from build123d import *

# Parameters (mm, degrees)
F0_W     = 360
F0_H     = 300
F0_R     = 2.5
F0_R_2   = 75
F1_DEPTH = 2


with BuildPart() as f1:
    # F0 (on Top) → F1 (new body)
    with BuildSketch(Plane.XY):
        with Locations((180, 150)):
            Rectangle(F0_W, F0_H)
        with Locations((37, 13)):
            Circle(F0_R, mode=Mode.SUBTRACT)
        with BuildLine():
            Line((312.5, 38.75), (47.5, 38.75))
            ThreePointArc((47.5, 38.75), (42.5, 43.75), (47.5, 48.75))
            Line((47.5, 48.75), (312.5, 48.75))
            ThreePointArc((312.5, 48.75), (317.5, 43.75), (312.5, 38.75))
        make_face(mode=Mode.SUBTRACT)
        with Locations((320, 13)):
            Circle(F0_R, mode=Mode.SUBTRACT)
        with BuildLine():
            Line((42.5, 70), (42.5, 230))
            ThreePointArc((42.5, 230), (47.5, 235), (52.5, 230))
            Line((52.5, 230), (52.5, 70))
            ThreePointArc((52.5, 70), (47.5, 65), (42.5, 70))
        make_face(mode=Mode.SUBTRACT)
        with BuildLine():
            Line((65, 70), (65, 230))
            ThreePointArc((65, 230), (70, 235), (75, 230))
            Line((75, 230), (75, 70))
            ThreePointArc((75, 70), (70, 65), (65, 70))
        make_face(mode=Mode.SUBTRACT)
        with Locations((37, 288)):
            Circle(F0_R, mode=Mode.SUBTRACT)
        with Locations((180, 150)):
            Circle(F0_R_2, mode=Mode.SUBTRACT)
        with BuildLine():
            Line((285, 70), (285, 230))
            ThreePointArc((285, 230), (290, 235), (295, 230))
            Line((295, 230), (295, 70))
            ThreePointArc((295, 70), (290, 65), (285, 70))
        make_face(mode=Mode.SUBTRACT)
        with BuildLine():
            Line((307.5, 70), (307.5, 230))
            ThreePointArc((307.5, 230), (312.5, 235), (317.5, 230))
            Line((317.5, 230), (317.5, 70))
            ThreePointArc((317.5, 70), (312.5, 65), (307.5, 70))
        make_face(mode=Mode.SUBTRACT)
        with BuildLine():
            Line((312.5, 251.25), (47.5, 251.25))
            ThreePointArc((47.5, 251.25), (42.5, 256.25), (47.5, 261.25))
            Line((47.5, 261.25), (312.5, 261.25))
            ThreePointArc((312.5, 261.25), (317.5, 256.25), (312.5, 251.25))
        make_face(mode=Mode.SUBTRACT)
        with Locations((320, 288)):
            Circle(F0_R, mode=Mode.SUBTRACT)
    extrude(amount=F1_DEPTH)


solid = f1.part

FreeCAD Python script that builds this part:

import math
import FreeCAD as App
import Part
import Sketcher
from FreeCAD import Vector


def add_polygon(sketch, points):
    """Adds a closed chain of lines whose ends are joined by coincident constraints."""
    first, n = sketch.GeometryCount, len(points)
    for a, b in zip(points, points[1:] + points[:1]):
        sketch.addGeometry(Part.LineSegment(App.Vector(*a, 0), App.Vector(*b, 0)), False)
    for i in range(n):
        sketch.addConstraint(Sketcher.Constraint("Coincident", first + i, 2, first + (i + 1) % n, 1))

doc = App.newDocument("Part")
body = doc.addObject("PartDesign::Body", "Body")

# Sketch on XY plane
sketch1 = body.newObject("Sketcher::SketchObject", "Sketch")
sketch1.AttachmentSupport = (doc.getObject("XY_Plane"), [""])
sketch1.MapMode = "FlatFace"
add_polygon(sketch1, [(0, 300), (0, 0), (360, 0), (360, 300)])  # lines 0-3
sketch1.addGeometry(Part.Circle(Vector(37, 13, 0), Vector(0, 0, 1), 2.5), False)  # 4
sketch1.addGeometry(Part.ArcOfCircle(Part.Circle(Vector(47.5, 70, 0), Vector(0, 0, 1), 5), math.radians(180), math.radians(360)), False)  # 5
sketch1.addGeometry(Part.LineSegment(Vector(42.5, 70, 0), Vector(42.5, 230, 0)), False)  # 6
sketch1.addGeometry(Part.ArcOfCircle(Part.Circle(Vector(47.5, 230, 0), Vector(0, 0, 1), 5), math.radians(0), math.radians(180)), False)  # 7
sketch1.addGeometry(Part.LineSegment(Vector(52.5, 230, 0), Vector(52.5, 70, 0)), False)  # 8
sketch1.addGeometry(Part.ArcOfCircle(Part.Circle(Vector(70, 70, 0), Vector(0, 0, 1), 5), math.radians(180), math.radians(360)), False)  # 9
sketch1.addGeometry(Part.LineSegment(Vector(65, 70, 0), Vector(65, 230, 0)), False)  # 10
sketch1.addGeometry(Part.ArcOfCircle(Part.Circle(Vector(70, 230, 0), Vector(0, 0, 1), 5), math.radians(0), math.radians(180)), False)  # 11
sketch1.addGeometry(Part.LineSegment(Vector(75, 230, 0), Vector(75, 70, 0)), False)  # 12
sketch1.addGeometry(Part.ArcOfCircle(Part.Circle(Vector(312.5, 43.75, 0), Vector(0, 0, 1), 5), math.radians(-90), math.radians(90)), False)  # 13
sketch1.addGeometry(Part.LineSegment(Vector(312.5, 38.75, 0), Vector(47.5, 38.75, 0)), False)  # 14
sketch1.addGeometry(Part.ArcOfCircle(Part.Circle(Vector(47.5, 43.75, 0), Vector(0, 0, 1), 5), math.radians(90), math.radians(270)), False)  # 15
sketch1.addGeometry(Part.LineSegment(Vector(47.5, 48.75, 0), Vector(312.5, 48.75, 0)), False)  # 16
sketch1.addGeometry(Part.Circle(Vector(320, 13, 0), Vector(0, 0, 1), 2.5), False)  # 17
sketch1.addGeometry(Part.Circle(Vector(180, 150, 0), Vector(0, 0, 1), 75), False)  # 18
sketch1.addGeometry(Part.ArcOfCircle(Part.Circle(Vector(290, 70, 0), Vector(0, 0, 1), 5), math.radians(180), math.radians(360)), False)  # 19
sketch1.addGeometry(Part.LineSegment(Vector(285, 70, 0), Vector(285, 230, 0)), False)  # 20
sketch1.addGeometry(Part.ArcOfCircle(Part.Circle(Vector(290, 230, 0), Vector(0, 0, 1), 5), math.radians(0), math.radians(180)), False)  # 21
sketch1.addGeometry(Part.LineSegment(Vector(295, 230, 0), Vector(295, 70, 0)), False)  # 22
sketch1.addGeometry(Part.ArcOfCircle(Part.Circle(Vector(312.5, 70, 0), Vector(0, 0, 1), 5), math.radians(180), math.radians(360)), False)  # 23
sketch1.addGeometry(Part.LineSegment(Vector(307.5, 70, 0), Vector(307.5, 230, 0)), False)  # 24
sketch1.addGeometry(Part.ArcOfCircle(Part.Circle(Vector(312.5, 230, 0), Vector(0, 0, 1), 5), math.radians(0), math.radians(180)), False)  # 25
sketch1.addGeometry(Part.LineSegment(Vector(317.5, 230, 0), Vector(317.5, 70, 0)), False)  # 26
sketch1.addGeometry(Part.Circle(Vector(37, 288, 0), Vector(0, 0, 1), 2.5), False)  # 27
sketch1.addGeometry(Part.ArcOfCircle(Part.Circle(Vector(312.5, 256.25, 0), Vector(0, 0, 1), 5), math.radians(-90), math.radians(90)), False)  # 28
sketch1.addGeometry(Part.LineSegment(Vector(312.5, 251.25, 0), Vector(47.5, 251.25, 0)), False)  # 29
sketch1.addGeometry(Part.ArcOfCircle(Part.Circle(Vector(47.5, 256.25, 0), Vector(0, 0, 1), 5), math.radians(90), math.radians(270)), False)  # 30
sketch1.addGeometry(Part.LineSegment(Vector(47.5, 261.25, 0), Vector(312.5, 261.25, 0)), False)  # 31
sketch1.addGeometry(Part.Circle(Vector(320, 288, 0), Vector(0, 0, 1), 2.5), False)  # 32
sketch1.addConstraint([
    Sketcher.Constraint("Tangent", 5, 1, 6, 1),
    Sketcher.Constraint("Tangent", 6, 2, 7, 2),
    Sketcher.Constraint("Tangent", 7, 1, 8, 1),
    Sketcher.Constraint("Tangent", 8, 2, 5, 2),
    Sketcher.Constraint("Tangent", 9, 1, 10, 1),
    Sketcher.Constraint("Tangent", 10, 2, 11, 2),
    Sketcher.Constraint("Tangent", 11, 1, 12, 1),
    Sketcher.Constraint("Tangent", 12, 2, 9, 2),
    Sketcher.Constraint("Tangent", 13, 1, 14, 1),
    Sketcher.Constraint("Tangent", 14, 2, 15, 2),
    Sketcher.Constraint("Tangent", 15, 1, 16, 1),
    Sketcher.Constraint("Tangent", 16, 2, 13, 2),
    Sketcher.Constraint("Tangent", 19, 1, 20, 1),
    Sketcher.Constraint("Tangent", 20, 2, 21, 2),
    Sketcher.Constraint("Tangent", 21, 1, 22, 1),
    Sketcher.Constraint("Tangent", 22, 2, 19, 2),
    Sketcher.Constraint("Tangent", 23, 1, 24, 1),
    Sketcher.Constraint("Tangent", 24, 2, 25, 2),
    Sketcher.Constraint("Tangent", 25, 1, 26, 1),
    Sketcher.Constraint("Tangent", 26, 2, 23, 2),
    Sketcher.Constraint("Tangent", 28, 1, 29, 1),
    Sketcher.Constraint("Tangent", 29, 2, 30, 2),
    Sketcher.Constraint("Tangent", 30, 1, 31, 1),
    Sketcher.Constraint("Tangent", 31, 2, 28, 2),
    Sketcher.Constraint("Vertical", 0),
    Sketcher.Constraint("Horizontal", 1),
    Sketcher.Constraint("Vertical", 2),
    Sketcher.Constraint("Horizontal", 3),
    Sketcher.Constraint("Vertical", 6),
    Sketcher.Constraint("Vertical", 8),
    Sketcher.Constraint("Vertical", 10),
    Sketcher.Constraint("Vertical", 12),
    Sketcher.Constraint("Horizontal", 14),
    Sketcher.Constraint("Horizontal", 16),
    Sketcher.Constraint("Vertical", 20),
    Sketcher.Constraint("Vertical", 22),
    Sketcher.Constraint("Vertical", 24),
    Sketcher.Constraint("Vertical", 26),
    Sketcher.Constraint("Horizontal", 29),
    Sketcher.Constraint("Horizontal", 31),
    Sketcher.Constraint("Coincident", 0, 2, -1, 1),
    Sketcher.Constraint("Equal", 7, 9),
    Sketcher.Constraint("Equal", 11, 13),
    Sketcher.Constraint("Equal", 4, 17),
    Sketcher.Constraint("Equal", 15, 19),
    Sketcher.Constraint("Equal", 21, 23),
    Sketcher.Constraint("Equal", 17, 27),
    Sketcher.Constraint("Equal", 25, 28),
    Sketcher.Constraint("Equal", 27, 32),
    Sketcher.Constraint("Horizontal", 5, 3, 9, 3),
    Sketcher.Constraint("Horizontal", 7, 3, 11, 3),
    Sketcher.Constraint("Horizontal", 4, 3, 17, 3),
    Sketcher.Constraint("Horizontal", 9, 3, 19, 3),
    Sketcher.Constraint("Horizontal", 11, 3, 21, 3),
    Sketcher.Constraint("Horizontal", 19, 3, 23, 3),
    Sketcher.Constraint("Horizontal", 21, 3, 25, 3),
    Sketcher.Constraint("Horizontal", 27, 3, 32, 3),
    Sketcher.Constraint("Vertical", 7, 3, 15, 3),
    Sketcher.Constraint("Vertical", 13, 3, 23, 3),
    Sketcher.Constraint("Vertical", 4, 3, 27, 3),
    Sketcher.Constraint("Vertical", 25, 3, 28, 3),
    Sketcher.Constraint("Vertical", 15, 3, 30, 3),
    Sketcher.Constraint("Vertical", 17, 3, 32, 3),
    Sketcher.Constraint("Diameter", 4, 5.0),
    Sketcher.Constraint("Diameter", 18, 150.0),
    Sketcher.Constraint("Radius", 5, 5.0),
    Sketcher.Constraint("DistanceX", 1, 1, 1, 2, 360.0),
    Sketcher.Constraint("DistanceX", 14, 2, 14, 1, 265.0),
    Sketcher.Constraint("DistanceY", 0, 2, 0, 1, 300.0),
    Sketcher.Constraint("DistanceY", 6, 1, 6, 2, 160.0),
    Sketcher.Constraint("DistanceX", -1, 1, 4, 3, 37.0),
    Sketcher.Constraint("DistanceY", -1, 1, 4, 3, 13.0),
    Sketcher.Constraint("DistanceY", -1, 1, 5, 3, 70.0),
    Sketcher.Constraint("DistanceX", -1, 1, 9, 3, 70.0),
    Sketcher.Constraint("DistanceX", -1, 1, 17, 3, 320.0),
    Sketcher.Constraint("DistanceX", -1, 1, 18, 3, 180.0),
    Sketcher.Constraint("DistanceY", -1, 1, 18, 3, 150.0),
    Sketcher.Constraint("DistanceX", -1, 1, 19, 3, 290.0),
    Sketcher.Constraint("DistanceY", -1, 1, 27, 3, 288.0),
    Sketcher.Constraint("DistanceX", -1, 1, 5, 3, 47.5),
    Sketcher.Constraint("DistanceY", -1, 1, 13, 3, 43.75),
    Sketcher.Constraint("DistanceY", -1, 1, 28, 3, 256.25),
])
pad1 = body.newObject("PartDesign::Pad", "Pad")
pad1.Profile = sketch1
pad1.Length = 2

doc.recompute()
